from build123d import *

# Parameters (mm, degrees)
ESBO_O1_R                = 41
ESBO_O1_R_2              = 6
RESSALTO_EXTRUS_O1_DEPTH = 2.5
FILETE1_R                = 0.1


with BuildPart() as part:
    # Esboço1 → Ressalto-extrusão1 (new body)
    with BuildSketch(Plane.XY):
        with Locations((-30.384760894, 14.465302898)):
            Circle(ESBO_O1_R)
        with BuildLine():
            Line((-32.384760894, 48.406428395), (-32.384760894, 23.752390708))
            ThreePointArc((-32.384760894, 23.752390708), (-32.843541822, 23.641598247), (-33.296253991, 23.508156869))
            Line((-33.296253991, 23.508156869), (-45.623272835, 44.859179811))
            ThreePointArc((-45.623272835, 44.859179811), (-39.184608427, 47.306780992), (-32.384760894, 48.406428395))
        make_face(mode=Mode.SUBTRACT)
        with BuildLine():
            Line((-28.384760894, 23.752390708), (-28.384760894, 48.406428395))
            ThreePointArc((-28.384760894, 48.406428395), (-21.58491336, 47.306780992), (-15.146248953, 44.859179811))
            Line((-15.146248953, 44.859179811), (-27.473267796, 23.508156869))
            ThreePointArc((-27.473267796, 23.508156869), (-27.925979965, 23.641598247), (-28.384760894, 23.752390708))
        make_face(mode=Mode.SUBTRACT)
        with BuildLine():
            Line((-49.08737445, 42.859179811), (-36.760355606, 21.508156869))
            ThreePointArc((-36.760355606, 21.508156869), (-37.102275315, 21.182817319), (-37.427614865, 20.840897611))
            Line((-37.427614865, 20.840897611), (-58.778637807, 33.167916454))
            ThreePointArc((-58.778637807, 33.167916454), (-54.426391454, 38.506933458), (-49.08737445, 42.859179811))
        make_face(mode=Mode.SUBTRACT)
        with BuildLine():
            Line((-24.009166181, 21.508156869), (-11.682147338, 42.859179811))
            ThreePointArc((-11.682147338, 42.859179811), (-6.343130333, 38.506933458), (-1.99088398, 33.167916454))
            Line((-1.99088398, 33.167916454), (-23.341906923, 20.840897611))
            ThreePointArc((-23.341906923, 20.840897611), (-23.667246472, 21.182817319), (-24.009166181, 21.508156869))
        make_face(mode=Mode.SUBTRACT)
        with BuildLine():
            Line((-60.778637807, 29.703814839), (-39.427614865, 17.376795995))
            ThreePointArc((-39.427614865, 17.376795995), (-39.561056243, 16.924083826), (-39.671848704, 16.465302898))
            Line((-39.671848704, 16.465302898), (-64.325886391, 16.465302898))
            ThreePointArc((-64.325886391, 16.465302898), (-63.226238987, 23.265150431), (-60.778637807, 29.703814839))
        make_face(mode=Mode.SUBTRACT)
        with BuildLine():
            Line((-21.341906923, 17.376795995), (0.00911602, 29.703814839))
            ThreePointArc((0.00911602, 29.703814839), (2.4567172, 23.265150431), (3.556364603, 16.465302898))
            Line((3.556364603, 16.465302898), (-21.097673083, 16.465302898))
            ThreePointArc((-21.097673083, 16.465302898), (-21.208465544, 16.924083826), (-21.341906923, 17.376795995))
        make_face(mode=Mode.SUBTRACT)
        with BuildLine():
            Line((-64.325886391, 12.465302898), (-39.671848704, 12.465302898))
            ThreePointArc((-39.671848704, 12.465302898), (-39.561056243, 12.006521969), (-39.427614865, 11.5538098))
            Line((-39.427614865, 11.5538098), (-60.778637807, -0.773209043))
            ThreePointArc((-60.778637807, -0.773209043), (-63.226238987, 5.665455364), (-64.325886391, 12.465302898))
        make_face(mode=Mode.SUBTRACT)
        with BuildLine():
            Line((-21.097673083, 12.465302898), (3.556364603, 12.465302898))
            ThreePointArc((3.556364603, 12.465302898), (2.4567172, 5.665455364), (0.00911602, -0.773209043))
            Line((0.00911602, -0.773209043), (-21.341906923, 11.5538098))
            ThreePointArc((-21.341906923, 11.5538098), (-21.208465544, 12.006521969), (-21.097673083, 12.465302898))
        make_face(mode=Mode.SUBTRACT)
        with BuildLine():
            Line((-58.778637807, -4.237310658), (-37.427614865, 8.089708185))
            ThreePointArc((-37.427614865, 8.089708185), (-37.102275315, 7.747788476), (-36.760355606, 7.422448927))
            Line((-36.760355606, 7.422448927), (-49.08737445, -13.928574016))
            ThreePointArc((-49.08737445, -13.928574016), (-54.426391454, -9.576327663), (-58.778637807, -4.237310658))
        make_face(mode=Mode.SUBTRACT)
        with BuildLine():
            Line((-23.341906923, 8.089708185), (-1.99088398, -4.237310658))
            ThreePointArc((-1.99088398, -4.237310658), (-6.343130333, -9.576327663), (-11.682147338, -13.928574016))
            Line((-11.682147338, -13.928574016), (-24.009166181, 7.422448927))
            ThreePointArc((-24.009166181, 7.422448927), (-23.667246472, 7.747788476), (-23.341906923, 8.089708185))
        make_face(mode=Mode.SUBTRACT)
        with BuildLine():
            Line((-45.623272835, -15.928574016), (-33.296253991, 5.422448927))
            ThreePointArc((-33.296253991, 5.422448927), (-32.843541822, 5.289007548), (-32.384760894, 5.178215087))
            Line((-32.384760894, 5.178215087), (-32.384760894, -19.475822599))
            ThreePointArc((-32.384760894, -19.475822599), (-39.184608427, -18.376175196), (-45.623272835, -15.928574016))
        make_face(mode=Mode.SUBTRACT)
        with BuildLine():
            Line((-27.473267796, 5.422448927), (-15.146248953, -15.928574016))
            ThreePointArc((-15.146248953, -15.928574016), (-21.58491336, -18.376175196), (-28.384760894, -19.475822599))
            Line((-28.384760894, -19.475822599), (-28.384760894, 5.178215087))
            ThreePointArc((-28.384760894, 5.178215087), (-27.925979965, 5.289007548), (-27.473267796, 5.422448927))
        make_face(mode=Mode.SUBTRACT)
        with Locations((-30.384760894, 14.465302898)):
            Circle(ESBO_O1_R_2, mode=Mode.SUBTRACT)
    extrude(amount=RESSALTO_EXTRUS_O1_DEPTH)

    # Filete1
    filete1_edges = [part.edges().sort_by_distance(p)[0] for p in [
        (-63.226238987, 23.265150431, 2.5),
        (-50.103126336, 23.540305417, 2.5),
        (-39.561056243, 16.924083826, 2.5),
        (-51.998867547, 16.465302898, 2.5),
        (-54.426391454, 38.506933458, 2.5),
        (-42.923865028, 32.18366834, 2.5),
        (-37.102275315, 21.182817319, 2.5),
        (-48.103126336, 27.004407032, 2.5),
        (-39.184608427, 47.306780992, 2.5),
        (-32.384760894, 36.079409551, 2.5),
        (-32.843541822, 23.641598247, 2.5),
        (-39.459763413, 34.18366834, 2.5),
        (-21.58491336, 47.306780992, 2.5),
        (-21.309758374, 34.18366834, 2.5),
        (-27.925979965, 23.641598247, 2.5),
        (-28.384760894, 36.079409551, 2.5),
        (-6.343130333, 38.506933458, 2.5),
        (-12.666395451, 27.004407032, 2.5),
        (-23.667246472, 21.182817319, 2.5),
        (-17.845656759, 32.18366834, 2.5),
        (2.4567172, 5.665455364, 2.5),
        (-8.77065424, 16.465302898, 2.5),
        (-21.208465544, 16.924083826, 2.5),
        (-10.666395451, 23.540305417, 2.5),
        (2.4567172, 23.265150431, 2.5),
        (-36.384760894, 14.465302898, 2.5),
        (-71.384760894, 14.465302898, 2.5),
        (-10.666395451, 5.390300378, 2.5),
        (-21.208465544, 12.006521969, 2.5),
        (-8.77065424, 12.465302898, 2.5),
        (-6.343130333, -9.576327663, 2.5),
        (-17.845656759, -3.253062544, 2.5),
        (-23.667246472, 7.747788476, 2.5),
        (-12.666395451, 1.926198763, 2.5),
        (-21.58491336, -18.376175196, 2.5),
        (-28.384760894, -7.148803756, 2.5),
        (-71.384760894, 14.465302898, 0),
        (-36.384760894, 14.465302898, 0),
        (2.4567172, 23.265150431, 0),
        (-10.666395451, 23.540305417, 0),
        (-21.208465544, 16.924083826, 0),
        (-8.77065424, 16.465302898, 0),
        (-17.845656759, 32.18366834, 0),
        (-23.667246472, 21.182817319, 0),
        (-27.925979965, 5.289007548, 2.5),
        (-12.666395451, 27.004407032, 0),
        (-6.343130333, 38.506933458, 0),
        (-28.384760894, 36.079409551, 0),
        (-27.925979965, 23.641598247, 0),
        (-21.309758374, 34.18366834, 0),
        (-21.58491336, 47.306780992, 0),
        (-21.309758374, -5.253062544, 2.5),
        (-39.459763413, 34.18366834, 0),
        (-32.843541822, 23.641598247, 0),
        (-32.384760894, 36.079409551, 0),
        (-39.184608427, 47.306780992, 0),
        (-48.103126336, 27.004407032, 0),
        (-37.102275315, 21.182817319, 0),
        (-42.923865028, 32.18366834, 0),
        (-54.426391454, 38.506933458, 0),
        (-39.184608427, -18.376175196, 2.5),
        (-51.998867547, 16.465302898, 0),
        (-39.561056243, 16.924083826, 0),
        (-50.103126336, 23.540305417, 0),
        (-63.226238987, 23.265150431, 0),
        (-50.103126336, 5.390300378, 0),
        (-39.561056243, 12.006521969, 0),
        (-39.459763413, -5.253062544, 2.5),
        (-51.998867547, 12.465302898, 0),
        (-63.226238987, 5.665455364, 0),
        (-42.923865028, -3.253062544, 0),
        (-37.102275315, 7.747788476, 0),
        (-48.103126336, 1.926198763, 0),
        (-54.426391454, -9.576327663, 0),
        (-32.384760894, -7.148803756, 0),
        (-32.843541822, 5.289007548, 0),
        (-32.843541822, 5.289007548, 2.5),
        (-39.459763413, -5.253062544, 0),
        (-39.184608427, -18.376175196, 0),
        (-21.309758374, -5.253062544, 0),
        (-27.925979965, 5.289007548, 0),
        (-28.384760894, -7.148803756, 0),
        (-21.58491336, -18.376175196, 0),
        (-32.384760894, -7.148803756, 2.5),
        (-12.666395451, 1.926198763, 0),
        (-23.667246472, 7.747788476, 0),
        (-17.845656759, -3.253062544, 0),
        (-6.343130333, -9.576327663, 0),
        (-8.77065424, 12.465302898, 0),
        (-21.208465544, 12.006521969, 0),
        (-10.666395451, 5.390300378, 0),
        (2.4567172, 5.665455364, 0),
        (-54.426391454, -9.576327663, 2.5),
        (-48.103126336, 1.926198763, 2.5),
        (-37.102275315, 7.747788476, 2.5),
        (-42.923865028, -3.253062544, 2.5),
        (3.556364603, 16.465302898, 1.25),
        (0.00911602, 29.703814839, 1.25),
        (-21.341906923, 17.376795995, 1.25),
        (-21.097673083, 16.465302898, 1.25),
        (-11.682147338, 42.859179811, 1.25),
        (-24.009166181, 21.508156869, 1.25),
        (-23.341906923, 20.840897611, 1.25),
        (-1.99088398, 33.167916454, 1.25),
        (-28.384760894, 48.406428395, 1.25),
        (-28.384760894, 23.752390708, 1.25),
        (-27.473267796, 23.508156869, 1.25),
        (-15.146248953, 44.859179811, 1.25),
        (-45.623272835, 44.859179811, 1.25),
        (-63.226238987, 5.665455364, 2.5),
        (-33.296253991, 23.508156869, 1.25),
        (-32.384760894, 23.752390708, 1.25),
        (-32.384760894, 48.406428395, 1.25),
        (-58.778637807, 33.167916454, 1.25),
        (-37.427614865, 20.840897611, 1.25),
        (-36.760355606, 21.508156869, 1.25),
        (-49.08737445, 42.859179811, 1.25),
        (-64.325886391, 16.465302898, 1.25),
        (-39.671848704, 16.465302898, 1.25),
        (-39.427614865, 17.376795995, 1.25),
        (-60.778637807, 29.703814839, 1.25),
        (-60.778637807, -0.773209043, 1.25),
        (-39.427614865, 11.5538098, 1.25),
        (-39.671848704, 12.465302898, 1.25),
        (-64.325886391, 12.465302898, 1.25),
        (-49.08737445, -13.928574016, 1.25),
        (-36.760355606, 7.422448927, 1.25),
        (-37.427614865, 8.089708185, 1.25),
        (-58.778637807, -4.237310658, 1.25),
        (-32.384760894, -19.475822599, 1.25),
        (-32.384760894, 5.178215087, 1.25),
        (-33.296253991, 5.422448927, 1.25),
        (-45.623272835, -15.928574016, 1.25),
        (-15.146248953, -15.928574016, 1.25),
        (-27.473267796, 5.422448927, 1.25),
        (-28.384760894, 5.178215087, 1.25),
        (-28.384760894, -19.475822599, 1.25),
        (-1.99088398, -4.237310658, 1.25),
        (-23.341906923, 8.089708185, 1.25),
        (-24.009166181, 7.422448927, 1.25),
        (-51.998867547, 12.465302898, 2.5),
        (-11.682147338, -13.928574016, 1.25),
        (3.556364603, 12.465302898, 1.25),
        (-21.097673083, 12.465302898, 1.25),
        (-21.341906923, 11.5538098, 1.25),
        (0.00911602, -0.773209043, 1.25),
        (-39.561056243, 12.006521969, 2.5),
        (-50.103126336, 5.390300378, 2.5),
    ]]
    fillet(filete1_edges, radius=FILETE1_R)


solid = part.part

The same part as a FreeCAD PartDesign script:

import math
import FreeCAD as App
import Part
import Sketcher
from FreeCAD import Vector
Q = App.Units.Quantity

doc = App.newDocument("Part")
body = doc.addObject("PartDesign::Body", "Body")

sketch1 = doc.addObject("Sketcher::SketchObject", "Sketch")
body.addObject(sketch1)
sketch1.AttachmentSupport = (doc.XY_Plane, [""])
sketch1.MapMode = "FlatFace"
sketch1.addGeometry(Part.Circle(Vector(-30.4, 14.5, 0), Vector(0, 0, 1), 41), False)
sketch1.addGeometry(Part.ArcOfCircle(Part.Circle(Vector(-30.4, 14.5, 0), Vector(0, 0, 1), 34), math.radians(-147), math.radians(-123)), False)
sketch1.addGeometry(Part.LineSegment(Vector(-58.8, -4.2, 0), Vector(-37.4, 8.1, 0)), False)
sketch1.addGeometry(Part.ArcOfCircle(Part.Circle(Vector(-30.4, 14.5, 0), Vector(0, 0, 1), 9.5), math.radians(-137.85), math.radians(-132.15)), False)
sketch1.addGeometry(Part.LineSegment(Vector(-36.8, 7.4, 0), Vector(-49.1, -13.9, 0)), False)
sketch1.addGeometry(Part.ArcOfCircle(Part.Circle(Vector(-30.4, 14.5, 0), Vector(0, 0, 1), 34), math.radians(-117), math.radians(-93)), False)
sketch1.addGeometry(Part.LineSegment(Vector(-45.6, -15.9, 0), Vector(-33.3, 5.4, 0)), False)
sketch1.addGeometry(Part.ArcOfCircle(Part.Circle(Vector(-30.4, 14.5, 0), Vector(0, 0, 1), 9.5), math.radians(-107.85), math.radians(-102.15)), False)
sketch1.addGeometry(Part.LineSegment(Vector(-32.4, 5.2, 0), Vector(-32.4, -19.5, 0)), False)
sketch1.addGeometry(Part.ArcOfCircle(Part.Circle(Vector(-30.4, 14.5, 0), Vector(0, 0, 1), 34), math.radians(-177), math.radians(-153)), False)
sketch1.addGeometry(Part.LineSegment(Vector(-64.3, 12.5, 0), Vector(-39.7, 12.5, 0)), False)
sketch1.addGeometry(Part.ArcOfCircle(Part.Circle(Vector(-30.4, 14.5, 0), Vector(0, 0, 1), 9.5), math.radians(-167.85), math.radians(-162.15)), False)
sketch1.addGeometry(Part.LineSegment(Vector(-39.4, 11.6, 0), Vector(-60.8, -0.8, 0)), False)
sketch1.addGeometry(Part.ArcOfCircle(Part.Circle(Vector(-30.4, 14.5, 0), Vector(0, 0, 1), 9.5), math.radians(-77.85), math.radians(-72.15)), False)
sketch1.addGeometry(Part.LineSegment(Vector(-27.5, 5.4, 0), Vector(-15.1, -15.9, 0)), False)
sketch1.addGeometry(Part.ArcOfCircle(Part.Circle(Vector(-30.4, 14.5, 0), Vector(0, 0, 1), 34), math.radians(-87), math.radians(-63)), False)
sketch1.addGeometry(Part.LineSegment(Vector(-28.4, -19.5, 0), Vector(-28.4, 5.2, 0)), False)
sketch1.addGeometry(Part.ArcOfCircle(Part.Circle(Vector(-30.4, 14.5, 0), Vector(0, 0, 1), 9.5), math.radians(-47.85), math.radians(-42.15)), False)
sketch1.addGeometry(Part.LineSegment(Vector(-23.3, 8.1, 0), Vector(-2, -4.2, 0)), False)
sketch1.addGeometry(Part.ArcOfCircle(Part.Circle(Vector(-30.4, 14.5, 0), Vector(0, 0, 1), 34), math.radians(-57), math.radians(-33)), False)
sketch1.addGeometry(Part.LineSegment(Vector(-11.7, -13.9, 0), Vector(-24, 7.4, 0)), False)
sketch1.addGeometry(Part.ArcOfCircle(Part.Circle(Vector(-30.4, 14.5, 0), Vector(0, 0, 1), 9.5), math.radians(-17.85), math.radians(-12.15)), False)
sketch1.addGeometry(Part.LineSegment(Vector(-21.1, 12.5, 0), Vector(3.6, 12.5, 0)), False)
sketch1.addGeometry(Part.ArcOfCircle(Part.Circle(Vector(-30.4, 14.5, 0), Vector(0, 0, 1), 34), math.radians(-27), math.radians(-3)), False)
sketch1.addGeometry(Part.LineSegment(Vector(0, -0.8, 0), Vector(-21.3, 11.6, 0)), False)
sketch1.addGeometry(Part.ArcOfCircle(Part.Circle(Vector(-30.4, 14.5, 0), Vector(0, 0, 1), 34), math.radians(153), math.radians(177)), False)
sketch1.addGeometry(Part.LineSegment(Vector(-60.8, 29.7, 0), Vector(-39.4, 17.4, 0)), False)
sketch1.addGeometry(Part.ArcOfCircle(Part.Circle(Vector(-30.4, 14.5, 0), Vector(0, 0, 1), 9.5), math.radians(162.15), math.radians(167.85)), False)
sketch1.addGeometry(Part.LineSegment(Vector(-39.7, 16.5, 0), Vector(-64.3, 16.5, 0)), False)
sketch1.addGeometry(Part.ArcOfCircle(Part.Circle(Vector(-30.4, 14.5, 0), Vector(0, 0, 1), 34), math.radians(123), math.radians(147)), False)
sketch1.addGeometry(Part.LineSegment(Vector(-49.1, 42.9, 0), Vector(-36.8, 21.5, 0)), False)
sketch1.addGeometry(Part.ArcOfCircle(Part.Circle(Vector(-30.4, 14.5, 0), Vector(0, 0, 1), 9.5), math.radians(132.15), math.radians(137.85)), False)
sketch1.addGeometry(Part.LineSegment(Vector(-37.4, 20.8, 0), Vector(-58.8, 33.2, 0)), False)
sketch1.addGeometry(Part.ArcOfCircle(Part.Circle(Vector(-30.4, 14.5, 0), Vector(0, 0, 1), 34), math.radians(93), math.radians(117)), False)
sketch1.addGeometry(Part.LineSegment(Vector(-32.4, 48.4, 0), Vector(-32.4, 23.8, 0)), False)
sketch1.addGeometry(Part.ArcOfCircle(Part.Circle(Vector(-30.4, 14.5, 0), Vector(0, 0, 1), 9.5), math.radians(102.15), math.radians(107.85)), False)
sketch1.addGeometry(Part.LineSegment(Vector(-33.3, 23.5, 0), Vector(-45.6, 44.9, 0)), False)
sketch1.addGeometry(Part.Circle(Vector(-30.4, 14.5, 0), Vector(0, 0, 1), 6), False)
sketch1.addGeometry(Part.ArcOfCircle(Part.Circle(Vector(-30.4, 14.5, 0), Vector(0, 0, 1), 9.5), math.radians(12.15), math.radians(17.85)), False)
sketch1.addGeometry(Part.LineSegment(Vector(-21.3, 17.4, 0), Vector(0, 29.7, 0)), False)
sketch1.addGeometry(Part.ArcOfCircle(Part.Circle(Vector(-30.4, 14.5, 0), Vector(0, 0, 1), 34), math.radians(3), math.radians(27)), False)
sketch1.addGeometry(Part.LineSegment(Vector(3.6, 16.5, 0), Vector(-21.1, 16.5, 0)), False)
sketch1.addGeometry(Part.ArcOfCircle(Part.Circle(Vector(-30.4, 14.5, 0), Vector(0, 0, 1), 9.5), math.radians(72.15), math.radians(77.85)), False)
sketch1.addGeometry(Part.LineSegment(Vector(-28.4, 23.8, 0), Vector(-28.4, 48.4, 0)), False)
sketch1.addGeometry(Part.ArcOfCircle(Part.Circle(Vector(-30.4, 14.5, 0), Vector(0, 0, 1), 34), math.radians(63), math.radians(87)), False)
sketch1.addGeometry(Part.LineSegment(Vector(-15.1, 44.9, 0), Vector(-27.5, 23.5, 0)), False)
sketch1.addGeometry(Part.ArcOfCircle(Part.Circle(Vector(-30.4, 14.5, 0), Vector(0, 0, 1), 9.5), math.radians(42.15), math.radians(47.85)), False)
sketch1.addGeometry(Part.LineSegment(Vector(-24, 21.5, 0), Vector(-11.7, 42.9, 0)), False)
sketch1.addGeometry(Part.ArcOfCircle(Part.Circle(Vector(-30.4, 14.5, 0), Vector(0, 0, 1), 34), math.radians(33), math.radians(57)), False)
sketch1.addGeometry(Part.LineSegment(Vector(-2, 33.2, 0), Vector(-23.3, 20.8, 0)), False)
sketch1.addConstraint(Sketcher.Constraint("Coincident", 1, 1, 2, 1))
sketch1.addConstraint(Sketcher.Constraint("Coincident", 2, 2, 3, 1))
sketch1.addConstraint(Sketcher.Constraint("Coincident", 3, 2, 4, 1))
sketch1.addConstraint(Sketcher.Constraint("Coincident", 4, 2, 1, 2))
sketch1.addConstraint(Sketcher.Constraint("Coincident", 5, 1, 6, 1))
sketch1.addConstraint(Sketcher.Constraint("Coincident", 6, 2, 7, 1))
sketch1.addConstraint(Sketcher.Constraint("Coincident", 7, 2, 8, 1))
sketch1.addConstraint(Sketcher.Constraint("Coincident", 8, 2, 5, 2))
sketch1.addConstraint(Sketcher.Constraint("Coincident", 9, 1, 10, 1))
sketch1.addConstraint(Sketcher.Constraint("Coincident", 10, 2, 11, 1))
sketch1.addConstraint(Sketcher.Constraint("Coincident", 11, 2, 12, 1))
sketch1.addConstraint(Sketcher.Constraint("Coincident", 12, 2, 9, 2))
sketch1.addConstraint(Sketcher.Constraint("Coincident", 13, 2, 14, 1))
sketch1.addConstraint(Sketcher.Constraint("Coincident", 14, 2, 15, 2))
sketch1.addConstraint(Sketcher.Constraint("Coincident", 15, 1, 16, 1))
sketch1.addConstraint(Sketcher.Constraint("Coincident", 16, 2, 13, 1))
sketch1.addConstraint(Sketcher.Constraint("Coincident", 17, 2, 18, 1))
sketch1.addConstraint(Sketcher.Constraint("Coincident", 18, 2, 19, 2))
sketch1.addConstraint(Sketcher.Constraint("Coincident", 19, 1, 20, 1))
sketch1.addConstraint(Sketcher.Constraint("Coincident", 20, 2, 17, 1))
sketch1.addConstraint(Sketcher.Constraint("Coincident", 21, 2, 22, 1))
sketch1.addConstraint(Sketcher.Constraint("Coincident", 22, 2, 23, 2))
sketch1.addConstraint(Sketcher.Constraint("Coincident", 23, 1, 24, 1))
sketch1.addConstraint(Sketcher.Constraint("Coincident", 24, 2, 21, 1))
sketch1.addConstraint(Sketcher.Constraint("Coincident", 25, 1, 26, 1))
sketch1.addConstraint(Sketcher.Constraint("Coincident", 26, 2, 27, 1))
sketch1.addConstraint(Sketcher.Constraint("Coincident", 27, 2, 28, 1))
sketch1.addConstraint(Sketcher.Constraint("Coincident", 28, 2, 25, 2))
sketch1.addConstraint(Sketcher.Constraint("Coincident", 29, 1, 30, 1))
sketch1.addConstraint(Sketcher.Constraint("Coincident", 30, 2, 31, 1))
sketch1.addConstraint(Sketcher.Constraint("Coincident", 31, 2, 32, 1))
sketch1.addConstraint(Sketcher.Constraint("Coincident", 32, 2, 29, 2))
sketch1.addConstraint(Sketcher.Constraint("Coincident", 33, 1, 34, 1))
sketch1.addConstraint(Sketcher.Constraint("Coincident", 34, 2, 35, 1))
sketch1.addConstraint(Sketcher.Constraint("Coincident", 35, 2, 36, 1))
sketch1.addConstraint(Sketcher.Constraint("Coincident", 36, 2, 33, 2))
sketch1.addConstraint(Sketcher.Constraint("Coincident", 38, 2, 39, 1))
sketch1.addConstraint(Sketcher.Constraint("Coincident", 39, 2, 40, 2))
sketch1.addConstraint(Sketcher.Constraint("Coincident", 40, 1, 41, 1))
sketch1.addConstraint(Sketcher.Constraint("Coincident", 41, 2, 38, 1))
sketch1.addConstraint(Sketcher.Constraint("Coincident", 42, 2, 43, 1))
sketch1.addConstraint(Sketcher.Constraint("Coincident", 43, 2, 44, 2))
sketch1.addConstraint(Sketcher.Constraint("Coincident", 44, 1, 45, 1))
sketch1.addConstraint(Sketcher.Constraint("Coincident", 45, 2, 42, 1))
sketch1.addConstraint(Sketcher.Constraint("Coincident", 46, 2, 47, 1))
sketch1.addConstraint(Sketcher.Constraint("Coincident", 47, 2, 48, 2))
sketch1.addConstraint(Sketcher.Constraint("Coincident", 48, 1, 49, 1))
sketch1.addConstraint(Sketcher.Constraint("Coincident", 49, 2, 46, 1))
sketch1.addConstraint(Sketcher.Constraint("Vertical", 8))
sketch1.addConstraint(Sketcher.Constraint("Horizontal", 10))
sketch1.addConstraint(Sketcher.Constraint("Vertical", 16))
sketch1.addConstraint(Sketcher.Constraint("Horizontal", 22))
sketch1.addConstraint(Sketcher.Constraint("Horizontal", 28))
sketch1.addConstraint(Sketcher.Constraint("Vertical", 34))
sketch1.addConstraint(Sketcher.Constraint("Horizontal", 41))
sketch1.addConstraint(Sketcher.Constraint("Vertical", 43))
sketch1.addConstraint(Sketcher.Constraint("Coincident", 1, 3, 0, 3))
sketch1.addConstraint(Sketcher.Constraint("Coincident", 3, 3, 0, 3))
sketch1.addConstraint(Sketcher.Constraint("Coincident", 5, 3, 0, 3))
sketch1.addConstraint(Sketcher.Constraint("Coincident", 7, 3, 0, 3))
sketch1.addConstraint(Sketcher.Constraint("Coincident", 9, 3, 0, 3))
sketch1.addConstraint(Sketcher.Constraint("Coincident", 11, 3, 0, 3))
sketch1.addConstraint(Sketcher.Constraint("Coincident", 13, 3, 0, 3))
sketch1.addConstraint(Sketcher.Constraint("Coincident", 15, 3, 0, 3))
sketch1.addConstraint(Sketcher.Constraint("Coincident", 17, 3, 0, 3))
sketch1.addConstraint(Sketcher.Constraint("Coincident", 19, 3, 0, 3))
sketch1.addConstraint(Sketcher.Constraint("Coincident", 21, 3, 0, 3))
sketch1.addConstraint(Sketcher.Constraint("Coincident", 23, 3, 0, 3))
sketch1.addConstraint(Sketcher.Constraint("Coincident", 25, 3, 0, 3))
sketch1.addConstraint(Sketcher.Constraint("Coincident", 27, 3, 0, 3))
sketch1.addConstraint(Sketcher.Constraint("Coincident", 29, 3, 0, 3))
sketch1.addConstraint(Sketcher.Constraint("Coincident", 31, 3, 0, 3))
sketch1.addConstraint(Sketcher.Constraint("Coincident", 33, 3, 0, 3))
sketch1.addConstraint(Sketcher.Constraint("Coincident", 35, 3, 0, 3))
sketch1.addConstraint(Sketcher.Constraint("Coincident", 37, 3, 0, 3))
sketch1.addConstraint(Sketcher.Constraint("Coincident", 38, 3, 0, 3))
sketch1.addConstraint(Sketcher.Constraint("Coincident", 40, 3, 0, 3))
sketch1.addConstraint(Sketcher.Constraint("Coincident", 42, 3, 0, 3))
sketch1.addConstraint(Sketcher.Constraint("Coincident", 44, 3, 0, 3))
sketch1.addConstraint(Sketcher.Constraint("Coincident", 46, 3, 0, 3))
sketch1.addConstraint(Sketcher.Constraint("Coincident", 48, 3, 0, 3))
sketch1.addConstraint(Sketcher.Constraint("Equal", 1, 5))
sketch1.addConstraint(Sketcher.Constraint("Equal", 3, 7))
sketch1.addConstraint(Sketcher.Constraint("Equal", 5, 9))
sketch1.addConstraint(Sketcher.Constraint("Equal", 7, 11))
sketch1.addConstraint(Sketcher.Constraint("Equal", 11, 13))
sketch1.addConstraint(Sketcher.Constraint("Equal", 9, 15))
sketch1.addConstraint(Sketcher.Constraint("Equal", 13, 17))
sketch1.addConstraint(Sketcher.Constraint("Equal", 15, 19))
sketch1.addConstraint(Sketcher.Constraint("Equal", 17, 21))
sketch1.addConstraint(Sketcher.Constraint("Equal", 19, 23))
sketch1.addConstraint(Sketcher.Constraint("Equal", 23, 25))
sketch1.addConstraint(Sketcher.Constraint("Equal", 21, 27))
sketch1.addConstraint(Sketcher.Constraint("Equal", 25, 29))
sketch1.addConstraint(Sketcher.Constraint("Equal", 27, 31))
sketch1.addConstraint(Sketcher.Constraint("Equal", 29, 33))
sketch1.addConstraint(Sketcher.Constraint("Equal", 31, 35))
sketch1.addConstraint(Sketcher.Constraint("Equal", 35, 38))
sketch1.addConstraint(Sketcher.Constraint("Equal", 33, 40))
sketch1.addConstraint(Sketcher.Constraint("Equal", 38, 42))
sketch1.addConstraint(Sketcher.Constraint("Equal", 40, 44))
sketch1.addConstraint(Sketcher.Constraint("Equal", 42, 46))
sketch1.addConstraint(Sketcher.Constraint("Equal", 44, 48))
sketch1.addConstraint(Sketcher.Constraint("Parallel", 4, 6))
sketch1.addConstraint(Sketcher.Constraint("Parallel", 2, 12))
sketch1.addConstraint(Sketcher.Constraint("Perpendicular", 12, 14))
sketch1.addConstraint(Sketcher.Constraint("Perpendicular", 6, 18))
sketch1.addConstraint(Sketcher.Constraint("Parallel", 14, 20))
sketch1.addConstraint(Sketcher.Constraint("Parallel", 18, 24))
sketch1.addConstraint(Sketcher.Constraint("Parallel", 24, 26))
sketch1.addConstraint(Sketcher.Constraint("Parallel", 20, 30))
sketch1.addConstraint(Sketcher.Constraint("Parallel", 26, 32))
sketch1.addConstraint(Sketcher.Constraint("Parallel", 30, 36))
sketch1.addConstraint(Sketcher.Constraint("Perpendicular", 36, 39))
sketch1.addConstraint(Sketcher.Constraint("Perpendicular", 32, 45))
sketch1.addConstraint(Sketcher.Constraint("Parallel", 45, 47))
sketch1.addConstraint(Sketcher.Constraint("Parallel", 39, 49))
sketch1.addConstraint(Sketcher.Constraint("Horizontal", 6, 2, 13, 2))
sketch1.addConstraint(Sketcher.Constraint("Horizontal", 5, 1, 14, 2))
sketch1.addConstraint(Sketcher.Constraint("Horizontal", 8, 2, 15, 1))
sketch1.addConstraint(Sketcher.Constraint("Horizontal", 2, 2, 17, 2))
sketch1.addConstraint(Sketcher.Constraint("Horizontal", 4, 2, 19, 1))
sketch1.addConstraint(Sketcher.Constraint("Horizontal", 10, 2, 21, 2))
sketch1.addConstraint(Sketcher.Constraint("Horizontal", 12, 2, 23, 1))
sketch1.addConstraint(Sketcher.Constraint("Horizontal", 26, 2, 38, 2))
sketch1.addConstraint(Sketcher.Constraint("Horizontal", 28, 2, 40, 1))
sketch1.addConstraint(Sketcher.Constraint("Horizontal", 34, 2, 42, 2))
sketch1.addConstraint(Sketcher.Constraint("Horizontal", 36, 2, 44, 1))
sketch1.addConstraint(Sketcher.Constraint("Horizontal", 30, 2, 46, 2))
sketch1.addConstraint(Sketcher.Constraint("Horizontal", 32, 2, 48, 1))
sketch1.addConstraint(Sketcher.Constraint("Vertical", 12, 2, 25, 1))
sketch1.addConstraint(Sketcher.Constraint("Vertical", 10, 2, 27, 2))
sketch1.addConstraint(Sketcher.Constraint("Vertical", 4, 2, 29, 1))
sketch1.addConstraint(Sketcher.Constraint("Vertical", 2, 2, 31, 2))
sketch1.addConstraint(Sketcher.Constraint("Vertical", 8, 2, 33, 1))
sketch1.addConstraint(Sketcher.Constraint("Vertical", 6, 2, 35, 2))
sketch1.addConstraint(Sketcher.Constraint("Equal", 41, 8))
sketch1.addConstraint(Sketcher.Constraint("Equal", 2, 4))
sketch1.addConstraint(Sketcher.Constraint("Equal", 4, 6))
sketch1.addConstraint(Sketcher.Constraint("Equal", 6, 12))
sketch1.addConstraint(Sketcher.Constraint("Diameter", 0, Q("82 mm")))
sketch1.addConstraint(Sketcher.Constraint("Diameter", 37, Q("12 mm")))
sketch1.addConstraint(Sketcher.Constraint("Radius", 1, Q("34 mm")))
sketch1.addConstraint(Sketcher.Constraint("Radius", 3, Q("9.5 mm")))
sketch1.addConstraint(Sketcher.Constraint("Angle", 2, Q("30 deg")))
sketch1.addConstraint(Sketcher.Constraint("DistanceX", 10, 1, 10, 2, Q("24.654038 mm")))
sketch1.addConstraint(Sketcher.Constraint("DistanceX", 0, 3, -1, 1, Q("30.384761 mm")))
sketch1.addConstraint(Sketcher.Constraint("DistanceY", 1, 1, -1, 1, Q("4.237311 mm")))
sketch1.addConstraint(Sketcher.Constraint("DistanceY", -1, 1, 2, 2, Q("8.089708 mm")))
pad1 = doc.addObject("PartDesign::Pad", "Pad")
body.addObject(pad1)
pad1.Profile = sketch1
pad1.Length = 2.5
doc.recompute()

fillet = doc.addObject("PartDesign::Fillet", "Fillet")
body.addObject(fillet)
fillet.Base = (pad1, ["Edge1"])
fillet.UseAllEdges = True
fillet.Radius = 0.1

doc.recompute()
